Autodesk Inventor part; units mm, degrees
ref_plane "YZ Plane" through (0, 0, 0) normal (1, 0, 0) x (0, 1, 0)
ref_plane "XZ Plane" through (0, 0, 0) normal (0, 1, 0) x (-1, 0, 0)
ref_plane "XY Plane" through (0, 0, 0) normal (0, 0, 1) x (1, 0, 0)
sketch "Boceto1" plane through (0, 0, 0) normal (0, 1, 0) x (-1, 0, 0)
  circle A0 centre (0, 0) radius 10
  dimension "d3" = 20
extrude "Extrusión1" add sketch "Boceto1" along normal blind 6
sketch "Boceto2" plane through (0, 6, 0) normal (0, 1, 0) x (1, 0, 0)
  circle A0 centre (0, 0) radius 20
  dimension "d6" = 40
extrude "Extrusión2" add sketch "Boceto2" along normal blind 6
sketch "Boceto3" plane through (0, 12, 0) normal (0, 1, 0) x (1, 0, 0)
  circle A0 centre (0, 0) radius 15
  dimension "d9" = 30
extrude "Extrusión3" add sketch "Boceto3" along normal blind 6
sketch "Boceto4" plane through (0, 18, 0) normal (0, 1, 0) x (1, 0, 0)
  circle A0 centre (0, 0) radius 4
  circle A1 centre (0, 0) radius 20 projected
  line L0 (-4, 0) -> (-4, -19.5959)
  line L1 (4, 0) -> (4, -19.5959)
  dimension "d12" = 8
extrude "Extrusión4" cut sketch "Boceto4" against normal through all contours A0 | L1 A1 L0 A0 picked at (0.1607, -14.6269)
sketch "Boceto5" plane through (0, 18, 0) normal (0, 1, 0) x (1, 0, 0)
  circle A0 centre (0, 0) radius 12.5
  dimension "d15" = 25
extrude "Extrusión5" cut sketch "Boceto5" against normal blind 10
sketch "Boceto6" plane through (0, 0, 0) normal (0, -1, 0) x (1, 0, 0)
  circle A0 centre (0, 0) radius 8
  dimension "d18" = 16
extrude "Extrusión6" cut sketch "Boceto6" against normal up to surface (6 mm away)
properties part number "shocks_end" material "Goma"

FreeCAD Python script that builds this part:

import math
import FreeCAD as App
import Part
import Sketcher

V = App.Vector
Q = App.Units.Quantity

doc = App.newDocument("Part")
body = doc.addObject("PartDesign::Body", "Body")

# Sketch on XZ plane
sketch1 = body.newObject("Sketcher::SketchObject", "Sketch")
sketch1.AttachmentSupport = (doc.getObject("XZ_Plane"), [""])
sketch1.MapMode = "FlatFace"
sketch1.addGeometry(Part.Circle(V(0, 0, 0), V(0, 0, 1), 10), False)
sketch1.addConstraint([
    Sketcher.Constraint("Coincident", 0, 3, -1, 1),
    Sketcher.Constraint("Diameter", 0, Q("20 mm")),
])
pad1 = body.newObject("PartDesign::Pad", "Pad")
pad1.Profile = sketch1
pad1.Length = 6
pad1.Reversed = True

# Sketch on XZ plane
sketch2 = body.newObject("Sketcher::SketchObject", "Sketch001")
sketch2.AttachmentSupport = (doc.getObject("XZ_Plane"), [""])
sketch2.MapMode = "FlatFace"
sketch2.AttachmentOffset = App.Placement(V(0, 0, -6), App.Rotation())
sketch2.addGeometry(Part.Circle(V(0, 0, 0), V(0, 0, 1), 20), False)
sketch2.addConstraint([
    Sketcher.Constraint("Coincident", 0, 3, -1, 1),
    Sketcher.Constraint("Diameter", 0, Q("40 mm")),
])
pad2 = body.newObject("PartDesign::Pad", "Pad001")
pad2.Profile = sketch2
pad2.Length = 6
pad2.Reversed = True

# Sketch on XZ plane
sketch3 = body.newObject("Sketcher::SketchObject", "Sketch002")
sketch3.AttachmentSupport = (doc.getObject("XZ_Plane"), [""])
sketch3.MapMode = "FlatFace"
sketch3.AttachmentOffset = App.Placement(V(0, 0, -12), App.Rotation())
sketch3.addGeometry(Part.Circle(V(0, 0, 0), V(0, 0, 1), 15), False)
sketch3.addConstraint([
    Sketcher.Constraint("Coincident", 0, 3, -1, 1),
    Sketcher.Constraint("Diameter", 0, Q("30 mm")),
])
pad3 = body.newObject("PartDesign::Pad", "Pad002")
pad3.Profile = sketch3
pad3.Length = 6
pad3.Reversed = True

# Sketch on XZ plane
sketch4 = body.newObject("Sketcher::SketchObject", "Sketch003")
sketch4.AttachmentSupport = (doc.getObject("XZ_Plane"), [""])
sketch4.MapMode = "FlatFace"
sketch4.AttachmentOffset = App.Placement(V(0, 0, -18), App.Rotation())
sketch4.addGeometry([
    Part.ArcOfCircle(Part.Circle(V(0, 0, 0), V(0, 0, 1), 4), math.radians(180), math.radians(360)),
    Part.LineSegment(V(-4, 0, 0), V(-4, 19.5959, 0)),
    Part.ArcOfCircle(Part.Circle(V(0, 0, 0), V(0, 0, 1), 20), math.radians(78.463031), math.radians(101.536969)),
    Part.LineSegment(V(4, 19.5959, 0), V(4, 0, 0)),
], False)
sketch4.addConstraint([
    Sketcher.Constraint("Tangent", 0, 1, 1, 1),
    Sketcher.Constraint("Coincident", 1, 2, 2, 2),
    Sketcher.Constraint("Coincident", 2, 1, 3, 1),
    Sketcher.Constraint("Tangent", 3, 2, 0, 2),
    Sketcher.Constraint("Vertical", 1),
    Sketcher.Constraint("Vertical", 3),
    Sketcher.Constraint("Coincident", 0, 3, -1, 1),
    Sketcher.Constraint("Coincident", 2, 3, -1, 1),
    Sketcher.Constraint("Radius", 0, Q("4 mm")),
    Sketcher.Constraint("Radius", 2, Q("20 mm")),
])
pocket1 = body.newObject("PartDesign::Pocket", "Pocket")
pocket1.Profile = sketch4
pocket1.Type = "ThroughAll"
pocket1.Reversed = True

# Sketch on XZ plane
sketch5 = body.newObject("Sketcher::SketchObject", "Sketch004")
sketch5.AttachmentSupport = (doc.getObject("XZ_Plane"), [""])
sketch5.MapMode = "FlatFace"
sketch5.AttachmentOffset = App.Placement(V(0, 0, -18), App.Rotation())
sketch5.addGeometry(Part.Circle(V(0, 0, 0), V(0, 0, 1), 12.5), False)
sketch5.addConstraint([
    Sketcher.Constraint("Coincident", 0, 3, -1, 1),
    Sketcher.Constraint("Diameter", 0, Q("25 mm")),
])
pocket2 = body.newObject("PartDesign::Pocket", "Pocket001")
pocket2.Profile = sketch5
pocket2.Length = 10
pocket2.Reversed = True

# Sketch on XZ plane
sketch6 = body.newObject("Sketcher::SketchObject", "Sketch005")
sketch6.AttachmentSupport = (doc.getObject("XZ_Plane"), [""])
sketch6.MapMode = "FlatFace"
sketch6.addGeometry(Part.Circle(V(0, 0, 0), V(0, 0, 1), 8), False)
sketch6.addConstraint([
    Sketcher.Constraint("Coincident", 0, 3, -1, 1),
    Sketcher.Constraint("Diameter", 0, Q("16 mm")),
])
pocket3 = body.newObject("PartDesign::Pocket", "Pocket002")
pocket3.Profile = sketch6
pocket3.Length = 6

doc.recompute()
